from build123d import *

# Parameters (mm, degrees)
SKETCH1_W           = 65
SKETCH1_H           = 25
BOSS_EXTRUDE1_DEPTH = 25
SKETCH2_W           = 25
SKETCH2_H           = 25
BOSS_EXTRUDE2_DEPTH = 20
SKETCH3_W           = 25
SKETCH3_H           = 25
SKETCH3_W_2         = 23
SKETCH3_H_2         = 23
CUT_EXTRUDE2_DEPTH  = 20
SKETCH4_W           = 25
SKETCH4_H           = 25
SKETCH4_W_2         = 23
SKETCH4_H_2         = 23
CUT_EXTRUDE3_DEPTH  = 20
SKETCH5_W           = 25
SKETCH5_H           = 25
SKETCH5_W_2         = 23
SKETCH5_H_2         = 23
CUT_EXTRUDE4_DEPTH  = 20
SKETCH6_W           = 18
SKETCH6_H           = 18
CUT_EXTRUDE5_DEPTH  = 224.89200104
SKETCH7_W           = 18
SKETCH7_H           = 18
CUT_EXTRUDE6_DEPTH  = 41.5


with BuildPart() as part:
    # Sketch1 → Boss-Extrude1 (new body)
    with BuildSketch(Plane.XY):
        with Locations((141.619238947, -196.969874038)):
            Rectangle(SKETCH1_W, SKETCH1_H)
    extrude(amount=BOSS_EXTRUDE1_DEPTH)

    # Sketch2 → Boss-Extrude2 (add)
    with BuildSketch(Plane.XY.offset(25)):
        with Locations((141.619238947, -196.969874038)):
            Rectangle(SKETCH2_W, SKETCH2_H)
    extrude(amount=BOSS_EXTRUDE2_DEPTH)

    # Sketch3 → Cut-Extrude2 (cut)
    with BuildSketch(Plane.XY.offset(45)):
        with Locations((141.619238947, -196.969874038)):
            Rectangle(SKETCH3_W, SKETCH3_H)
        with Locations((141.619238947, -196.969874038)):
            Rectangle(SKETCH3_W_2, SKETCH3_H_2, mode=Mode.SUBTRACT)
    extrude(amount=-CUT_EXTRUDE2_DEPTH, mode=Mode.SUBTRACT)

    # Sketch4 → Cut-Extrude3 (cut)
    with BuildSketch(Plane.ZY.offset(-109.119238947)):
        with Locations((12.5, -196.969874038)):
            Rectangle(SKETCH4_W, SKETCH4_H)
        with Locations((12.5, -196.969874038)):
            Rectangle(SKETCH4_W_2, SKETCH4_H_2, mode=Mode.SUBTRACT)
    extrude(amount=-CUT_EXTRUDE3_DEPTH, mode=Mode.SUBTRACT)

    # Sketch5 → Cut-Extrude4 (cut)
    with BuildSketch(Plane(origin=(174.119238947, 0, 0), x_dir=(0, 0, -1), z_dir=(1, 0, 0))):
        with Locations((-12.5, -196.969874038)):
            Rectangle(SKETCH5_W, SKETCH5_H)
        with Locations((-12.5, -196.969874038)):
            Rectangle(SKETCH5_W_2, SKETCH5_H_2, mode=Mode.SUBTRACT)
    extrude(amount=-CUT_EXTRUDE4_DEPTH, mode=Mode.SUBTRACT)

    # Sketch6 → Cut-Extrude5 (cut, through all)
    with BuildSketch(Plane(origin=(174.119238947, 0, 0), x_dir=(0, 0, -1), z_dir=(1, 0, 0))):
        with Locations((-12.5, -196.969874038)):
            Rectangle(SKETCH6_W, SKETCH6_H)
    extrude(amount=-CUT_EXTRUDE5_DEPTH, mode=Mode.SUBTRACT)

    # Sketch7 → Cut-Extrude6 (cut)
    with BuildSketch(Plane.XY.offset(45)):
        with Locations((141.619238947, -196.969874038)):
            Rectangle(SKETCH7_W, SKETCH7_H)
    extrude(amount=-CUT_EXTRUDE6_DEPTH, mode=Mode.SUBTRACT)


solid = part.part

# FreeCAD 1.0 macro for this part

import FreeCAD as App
import Part
import Sketcher

V = App.Vector


def add_polygon(sketch, points):
    """Adds a closed chain of lines whose ends are joined by coincident constraints."""
    first, n = sketch.GeometryCount, len(points)
    for a, b in zip(points, points[1:] + points[:1]):
        sketch.addGeometry(Part.LineSegment(App.Vector(*a, 0), App.Vector(*b, 0)), False)
    for i in range(n):
        sketch.addConstraint(Sketcher.Constraint("Coincident", first + i, 2, first + (i + 1) % n, 1))

doc = App.newDocument("Part")
body = doc.addObject("PartDesign::Body", "Body")

sketch1 = body.newObject("Sketcher::SketchObject", "Sketch")
sketch1.AttachmentSupport = (doc.getObject("XY_Plane"), [""])
sketch1.MapMode = "FlatFace"
add_polygon(sketch1, [(109, -184), (109, -209), (174, -209), (174, -184)])
sketch1.addConstraint([
    Sketcher.Constraint("Vertical", 0),
    Sketcher.Constraint("Horizontal", 1),
    Sketcher.Constraint("Vertical", 2),
    Sketcher.Constraint("Horizontal", 3),
    Sketcher.Constraint("DistanceX", 1, 1, 1, 2, 65.0),
    Sketcher.Constraint("DistanceY", 0, 2, 0, 1, 25.0),
    Sketcher.Constraint("DistanceX", -1, 1, 0, 2, 109.119239),
    Sketcher.Constraint("DistanceY", 0, 2, -1, 1, 209.469874),
])
pad1 = body.newObject("PartDesign::Pad", "Pad")
pad1.Profile = sketch1
pad1.Length = 25

sketch2 = body.newObject("Sketcher::SketchObject", "Sketch001")
sketch2.AttachmentSupport = (doc.getObject("XY_Plane"), [""])
sketch2.MapMode = "FlatFace"
sketch2.AttachmentOffset = App.Placement(V(0, 0, 25), App.Rotation())
add_polygon(sketch2, [(129, -184), (129, -209), (154, -209), (154, -184)])
sketch2.addConstraint([
    Sketcher.Constraint("Vertical", 0),
    Sketcher.Constraint("Horizontal", 1),
    Sketcher.Constraint("Vertical", 2),
    Sketcher.Constraint("Horizontal", 3),
    Sketcher.Constraint("Equal", 3, 0),
    Sketcher.Constraint("DistanceX", 1, 1, 1, 2, 25.0),
    Sketcher.Constraint("DistanceX", -1, 1, 0, 2, 129.119239),
    Sketcher.Constraint("DistanceY", 0, 2, -1, 1, 209.469874),
])
pad2 = body.newObject("PartDesign::Pad", "Pad001")
pad2.Profile = sketch2
pad2.Length = 20

sketch3 = body.newObject("Sketcher::SketchObject", "Sketch002")
sketch3.AttachmentSupport = (doc.getObject("XY_Plane"), [""])
sketch3.MapMode = "FlatFace"
sketch3.AttachmentOffset = App.Placement(V(0, 0, 45), App.Rotation())
add_polygon(sketch3, [(129, -184), (129, -209), (154, -209), (154, -184)])
add_polygon(sketch3, [(153, -208), (130, -208), (130, -185), (153, -185)])
sketch3.addConstraint([
    Sketcher.Constraint("Vertical", 0),
    Sketcher.Constraint("Horizontal", 1),
    Sketcher.Constraint("Vertical", 2),
    Sketcher.Constraint("Horizontal", 3),
    Sketcher.Constraint("Horizontal", 4),
    Sketcher.Constraint("Vertical", 5),
    Sketcher.Constraint("Horizontal", 6),
    Sketcher.Constraint("Vertical", 7),
    Sketcher.Constraint("Equal", 3, 0),
    Sketcher.Constraint("Equal", 6, 5),
    Sketcher.Constraint("DistanceX", 1, 1, 1, 2, 25.0),
    Sketcher.Constraint("DistanceX", 4, 2, 4, 1, 23.0),
    Sketcher.Constraint("DistanceX", 0, 2, 4, 2, 1.0),
    Sketcher.Constraint("DistanceY", 0, 2, 4, 2, 1.0),
    Sketcher.Constraint("DistanceX", -1, 1, 0, 2, 129.119239),
    Sketcher.Constraint("DistanceY", 0, 2, -1, 1, 209.469874),
])
pocket1 = body.newObject("PartDesign::Pocket", "Pocket")
pocket1.Profile = sketch3
pocket1.Length = 20

sketch4 = body.newObject("Sketcher::SketchObject", "Sketch003")
sketch4.AttachmentSupport = (doc.getObject("YZ_Plane"), [""])
sketch4.MapMode = "FlatFace"
sketch4.AttachmentOffset = App.Placement(V(0, 0, 109.119239), App.Rotation())
add_polygon(sketch4, [(-184, 0), (-209, 0), (-209, 25), (-184, 25)])
add_polygon(sketch4, [(-208, 24), (-208, 1), (-185, 1), (-185, 24)])
sketch4.addConstraint([
    Sketcher.Constraint("Horizontal", 0),
    Sketcher.Constraint("Vertical", 1),
    Sketcher.Constraint("Horizontal", 2),
    Sketcher.Constraint("Vertical", 3),
    Sketcher.Constraint("Vertical", 4),
    Sketcher.Constraint("Horizontal", 5),
    Sketcher.Constraint("Vertical", 6),
    Sketcher.Constraint("Horizontal", 7),
    Sketcher.Constraint("PointOnObject", 0, 2, -1),
    Sketcher.Constraint("Equal", 2, 1),
    Sketcher.Constraint("Equal", 7, 4),
    Sketcher.Constraint("DistanceX", 0, 2, 0, 1, 25.0),
    Sketcher.Constraint("DistanceX", 5, 1, 5, 2, 23.0),
    Sketcher.Constraint("DistanceY", -1, 1, 4, 2, 1.0),
    Sketcher.Constraint("DistanceX", 0, 2, 4, 2, 1.0),
    Sketcher.Constraint("DistanceX", 0, 2, -1, 1, 209.469874),
])
pocket2 = body.newObject("PartDesign::Pocket", "Pocket001")
pocket2.Profile = sketch4
pocket2.Length = 20
pocket2.Reversed = True

sketch5 = body.newObject("Sketcher::SketchObject", "Sketch004")
sketch5.AttachmentSupport = (doc.getObject("YZ_Plane"), [""])
sketch5.MapMode = "FlatFace"
sketch5.AttachmentOffset = App.Placement(V(0, 0, 174.119239), App.Rotation())
add_polygon(sketch5, [(-184, 25), (-209, 25), (-209, 0), (-184, 0)])
add_polygon(sketch5, [(-208, 1), (-208, 24), (-185, 24), (-185, 1)])
sketch5.addConstraint([
    Sketcher.Constraint("Horizontal", 0),
    Sketcher.Constraint("Vertical", 1),
    Sketcher.Constraint("Horizontal", 2),
    Sketcher.Constraint("Vertical", 3),
    Sketcher.Constraint("Vertical", 4),
    Sketcher.Constraint("Horizontal", 5),
    Sketcher.Constraint("Vertical", 6),
    Sketcher.Constraint("Horizontal", 7),
    Sketcher.Constraint("PointOnObject", 1, 2, -1),
    Sketcher.Constraint("Equal", 2, 1),
    Sketcher.Constraint("Equal", 7, 4),
    Sketcher.Constraint("DistanceX", 0, 2, 0, 1, 25.0),
    Sketcher.Constraint("DistanceX", 5, 1, 5, 2, 23.0),
    Sketcher.Constraint("DistanceY", -1, 1, 4, 2, 24.0),
    Sketcher.Constraint("DistanceX", 0, 2, 4, 2, 1.0),
    Sketcher.Constraint("DistanceX", 0, 2, -1, 1, 209.469874),
])
pocket3 = body.newObject("PartDesign::Pocket", "Pocket002")
pocket3.Profile = sketch5
pocket3.Length = 20

sketch6 = body.newObject("Sketcher::SketchObject", "Sketch005")
sketch6.AttachmentSupport = (doc.getObject("YZ_Plane"), [""])
sketch6.MapMode = "FlatFace"
sketch6.AttachmentOffset = App.Placement(V(0, 0, 174.119239), App.Rotation())
add_polygon(sketch6, [(-188, 22), (-206, 22), (-206, 4), (-188, 4)])
sketch6.addConstraint([
    Sketcher.Constraint("Horizontal", 0),
    Sketcher.Constraint("Vertical", 1),
    Sketcher.Constraint("Horizontal", 2),
    Sketcher.Constraint("Vertical", 3),
    Sketcher.Constraint("Equal", 2, 1),
    Sketcher.Constraint("DistanceX", 0, 2, 0, 1, 18.0),
    Sketcher.Constraint("DistanceY", -1, 1, 0, 2, 21.5),
    Sketcher.Constraint("DistanceX", 0, 2, -1, 1, 205.969874),
])
pocket4 = body.newObject("PartDesign::Pocket", "Pocket003")
pocket4.Profile = sketch6
pocket4.Type = "ThroughAll"

sketch7 = body.newObject("Sketcher::SketchObject", "Sketch006")
sketch7.AttachmentSupport = (doc.getObject("XY_Plane"), [""])
sketch7.MapMode = "FlatFace"
sketch7.AttachmentOffset = App.Placement(V(0, 0, 45), App.Rotation())
add_polygon(sketch7, [(133, -188), (133, -206), (151, -206), (151, -188)])
sketch7.addConstraint([
    Sketcher.Constraint("Vertical", 0),
    Sketcher.Constraint("Horizontal", 1),
    Sketcher.Constraint("Vertical", 2),
    Sketcher.Constraint("Horizontal", 3),
    Sketcher.Constraint("Equal", 3, 0),
    Sketcher.Constraint("DistanceX", 1, 1, 1, 2, 18.0),
    Sketcher.Constraint("DistanceX", -1, 1, 0, 2, 132.619239),
    Sketcher.Constraint("DistanceY", 0, 2, -1, 1, 205.969874),
])
pocket5 = body.newObject("PartDesign::Pocket", "Pocket004")
pocket5.Profile = sketch7
pocket5.Length = 41.5

doc.recompute()
